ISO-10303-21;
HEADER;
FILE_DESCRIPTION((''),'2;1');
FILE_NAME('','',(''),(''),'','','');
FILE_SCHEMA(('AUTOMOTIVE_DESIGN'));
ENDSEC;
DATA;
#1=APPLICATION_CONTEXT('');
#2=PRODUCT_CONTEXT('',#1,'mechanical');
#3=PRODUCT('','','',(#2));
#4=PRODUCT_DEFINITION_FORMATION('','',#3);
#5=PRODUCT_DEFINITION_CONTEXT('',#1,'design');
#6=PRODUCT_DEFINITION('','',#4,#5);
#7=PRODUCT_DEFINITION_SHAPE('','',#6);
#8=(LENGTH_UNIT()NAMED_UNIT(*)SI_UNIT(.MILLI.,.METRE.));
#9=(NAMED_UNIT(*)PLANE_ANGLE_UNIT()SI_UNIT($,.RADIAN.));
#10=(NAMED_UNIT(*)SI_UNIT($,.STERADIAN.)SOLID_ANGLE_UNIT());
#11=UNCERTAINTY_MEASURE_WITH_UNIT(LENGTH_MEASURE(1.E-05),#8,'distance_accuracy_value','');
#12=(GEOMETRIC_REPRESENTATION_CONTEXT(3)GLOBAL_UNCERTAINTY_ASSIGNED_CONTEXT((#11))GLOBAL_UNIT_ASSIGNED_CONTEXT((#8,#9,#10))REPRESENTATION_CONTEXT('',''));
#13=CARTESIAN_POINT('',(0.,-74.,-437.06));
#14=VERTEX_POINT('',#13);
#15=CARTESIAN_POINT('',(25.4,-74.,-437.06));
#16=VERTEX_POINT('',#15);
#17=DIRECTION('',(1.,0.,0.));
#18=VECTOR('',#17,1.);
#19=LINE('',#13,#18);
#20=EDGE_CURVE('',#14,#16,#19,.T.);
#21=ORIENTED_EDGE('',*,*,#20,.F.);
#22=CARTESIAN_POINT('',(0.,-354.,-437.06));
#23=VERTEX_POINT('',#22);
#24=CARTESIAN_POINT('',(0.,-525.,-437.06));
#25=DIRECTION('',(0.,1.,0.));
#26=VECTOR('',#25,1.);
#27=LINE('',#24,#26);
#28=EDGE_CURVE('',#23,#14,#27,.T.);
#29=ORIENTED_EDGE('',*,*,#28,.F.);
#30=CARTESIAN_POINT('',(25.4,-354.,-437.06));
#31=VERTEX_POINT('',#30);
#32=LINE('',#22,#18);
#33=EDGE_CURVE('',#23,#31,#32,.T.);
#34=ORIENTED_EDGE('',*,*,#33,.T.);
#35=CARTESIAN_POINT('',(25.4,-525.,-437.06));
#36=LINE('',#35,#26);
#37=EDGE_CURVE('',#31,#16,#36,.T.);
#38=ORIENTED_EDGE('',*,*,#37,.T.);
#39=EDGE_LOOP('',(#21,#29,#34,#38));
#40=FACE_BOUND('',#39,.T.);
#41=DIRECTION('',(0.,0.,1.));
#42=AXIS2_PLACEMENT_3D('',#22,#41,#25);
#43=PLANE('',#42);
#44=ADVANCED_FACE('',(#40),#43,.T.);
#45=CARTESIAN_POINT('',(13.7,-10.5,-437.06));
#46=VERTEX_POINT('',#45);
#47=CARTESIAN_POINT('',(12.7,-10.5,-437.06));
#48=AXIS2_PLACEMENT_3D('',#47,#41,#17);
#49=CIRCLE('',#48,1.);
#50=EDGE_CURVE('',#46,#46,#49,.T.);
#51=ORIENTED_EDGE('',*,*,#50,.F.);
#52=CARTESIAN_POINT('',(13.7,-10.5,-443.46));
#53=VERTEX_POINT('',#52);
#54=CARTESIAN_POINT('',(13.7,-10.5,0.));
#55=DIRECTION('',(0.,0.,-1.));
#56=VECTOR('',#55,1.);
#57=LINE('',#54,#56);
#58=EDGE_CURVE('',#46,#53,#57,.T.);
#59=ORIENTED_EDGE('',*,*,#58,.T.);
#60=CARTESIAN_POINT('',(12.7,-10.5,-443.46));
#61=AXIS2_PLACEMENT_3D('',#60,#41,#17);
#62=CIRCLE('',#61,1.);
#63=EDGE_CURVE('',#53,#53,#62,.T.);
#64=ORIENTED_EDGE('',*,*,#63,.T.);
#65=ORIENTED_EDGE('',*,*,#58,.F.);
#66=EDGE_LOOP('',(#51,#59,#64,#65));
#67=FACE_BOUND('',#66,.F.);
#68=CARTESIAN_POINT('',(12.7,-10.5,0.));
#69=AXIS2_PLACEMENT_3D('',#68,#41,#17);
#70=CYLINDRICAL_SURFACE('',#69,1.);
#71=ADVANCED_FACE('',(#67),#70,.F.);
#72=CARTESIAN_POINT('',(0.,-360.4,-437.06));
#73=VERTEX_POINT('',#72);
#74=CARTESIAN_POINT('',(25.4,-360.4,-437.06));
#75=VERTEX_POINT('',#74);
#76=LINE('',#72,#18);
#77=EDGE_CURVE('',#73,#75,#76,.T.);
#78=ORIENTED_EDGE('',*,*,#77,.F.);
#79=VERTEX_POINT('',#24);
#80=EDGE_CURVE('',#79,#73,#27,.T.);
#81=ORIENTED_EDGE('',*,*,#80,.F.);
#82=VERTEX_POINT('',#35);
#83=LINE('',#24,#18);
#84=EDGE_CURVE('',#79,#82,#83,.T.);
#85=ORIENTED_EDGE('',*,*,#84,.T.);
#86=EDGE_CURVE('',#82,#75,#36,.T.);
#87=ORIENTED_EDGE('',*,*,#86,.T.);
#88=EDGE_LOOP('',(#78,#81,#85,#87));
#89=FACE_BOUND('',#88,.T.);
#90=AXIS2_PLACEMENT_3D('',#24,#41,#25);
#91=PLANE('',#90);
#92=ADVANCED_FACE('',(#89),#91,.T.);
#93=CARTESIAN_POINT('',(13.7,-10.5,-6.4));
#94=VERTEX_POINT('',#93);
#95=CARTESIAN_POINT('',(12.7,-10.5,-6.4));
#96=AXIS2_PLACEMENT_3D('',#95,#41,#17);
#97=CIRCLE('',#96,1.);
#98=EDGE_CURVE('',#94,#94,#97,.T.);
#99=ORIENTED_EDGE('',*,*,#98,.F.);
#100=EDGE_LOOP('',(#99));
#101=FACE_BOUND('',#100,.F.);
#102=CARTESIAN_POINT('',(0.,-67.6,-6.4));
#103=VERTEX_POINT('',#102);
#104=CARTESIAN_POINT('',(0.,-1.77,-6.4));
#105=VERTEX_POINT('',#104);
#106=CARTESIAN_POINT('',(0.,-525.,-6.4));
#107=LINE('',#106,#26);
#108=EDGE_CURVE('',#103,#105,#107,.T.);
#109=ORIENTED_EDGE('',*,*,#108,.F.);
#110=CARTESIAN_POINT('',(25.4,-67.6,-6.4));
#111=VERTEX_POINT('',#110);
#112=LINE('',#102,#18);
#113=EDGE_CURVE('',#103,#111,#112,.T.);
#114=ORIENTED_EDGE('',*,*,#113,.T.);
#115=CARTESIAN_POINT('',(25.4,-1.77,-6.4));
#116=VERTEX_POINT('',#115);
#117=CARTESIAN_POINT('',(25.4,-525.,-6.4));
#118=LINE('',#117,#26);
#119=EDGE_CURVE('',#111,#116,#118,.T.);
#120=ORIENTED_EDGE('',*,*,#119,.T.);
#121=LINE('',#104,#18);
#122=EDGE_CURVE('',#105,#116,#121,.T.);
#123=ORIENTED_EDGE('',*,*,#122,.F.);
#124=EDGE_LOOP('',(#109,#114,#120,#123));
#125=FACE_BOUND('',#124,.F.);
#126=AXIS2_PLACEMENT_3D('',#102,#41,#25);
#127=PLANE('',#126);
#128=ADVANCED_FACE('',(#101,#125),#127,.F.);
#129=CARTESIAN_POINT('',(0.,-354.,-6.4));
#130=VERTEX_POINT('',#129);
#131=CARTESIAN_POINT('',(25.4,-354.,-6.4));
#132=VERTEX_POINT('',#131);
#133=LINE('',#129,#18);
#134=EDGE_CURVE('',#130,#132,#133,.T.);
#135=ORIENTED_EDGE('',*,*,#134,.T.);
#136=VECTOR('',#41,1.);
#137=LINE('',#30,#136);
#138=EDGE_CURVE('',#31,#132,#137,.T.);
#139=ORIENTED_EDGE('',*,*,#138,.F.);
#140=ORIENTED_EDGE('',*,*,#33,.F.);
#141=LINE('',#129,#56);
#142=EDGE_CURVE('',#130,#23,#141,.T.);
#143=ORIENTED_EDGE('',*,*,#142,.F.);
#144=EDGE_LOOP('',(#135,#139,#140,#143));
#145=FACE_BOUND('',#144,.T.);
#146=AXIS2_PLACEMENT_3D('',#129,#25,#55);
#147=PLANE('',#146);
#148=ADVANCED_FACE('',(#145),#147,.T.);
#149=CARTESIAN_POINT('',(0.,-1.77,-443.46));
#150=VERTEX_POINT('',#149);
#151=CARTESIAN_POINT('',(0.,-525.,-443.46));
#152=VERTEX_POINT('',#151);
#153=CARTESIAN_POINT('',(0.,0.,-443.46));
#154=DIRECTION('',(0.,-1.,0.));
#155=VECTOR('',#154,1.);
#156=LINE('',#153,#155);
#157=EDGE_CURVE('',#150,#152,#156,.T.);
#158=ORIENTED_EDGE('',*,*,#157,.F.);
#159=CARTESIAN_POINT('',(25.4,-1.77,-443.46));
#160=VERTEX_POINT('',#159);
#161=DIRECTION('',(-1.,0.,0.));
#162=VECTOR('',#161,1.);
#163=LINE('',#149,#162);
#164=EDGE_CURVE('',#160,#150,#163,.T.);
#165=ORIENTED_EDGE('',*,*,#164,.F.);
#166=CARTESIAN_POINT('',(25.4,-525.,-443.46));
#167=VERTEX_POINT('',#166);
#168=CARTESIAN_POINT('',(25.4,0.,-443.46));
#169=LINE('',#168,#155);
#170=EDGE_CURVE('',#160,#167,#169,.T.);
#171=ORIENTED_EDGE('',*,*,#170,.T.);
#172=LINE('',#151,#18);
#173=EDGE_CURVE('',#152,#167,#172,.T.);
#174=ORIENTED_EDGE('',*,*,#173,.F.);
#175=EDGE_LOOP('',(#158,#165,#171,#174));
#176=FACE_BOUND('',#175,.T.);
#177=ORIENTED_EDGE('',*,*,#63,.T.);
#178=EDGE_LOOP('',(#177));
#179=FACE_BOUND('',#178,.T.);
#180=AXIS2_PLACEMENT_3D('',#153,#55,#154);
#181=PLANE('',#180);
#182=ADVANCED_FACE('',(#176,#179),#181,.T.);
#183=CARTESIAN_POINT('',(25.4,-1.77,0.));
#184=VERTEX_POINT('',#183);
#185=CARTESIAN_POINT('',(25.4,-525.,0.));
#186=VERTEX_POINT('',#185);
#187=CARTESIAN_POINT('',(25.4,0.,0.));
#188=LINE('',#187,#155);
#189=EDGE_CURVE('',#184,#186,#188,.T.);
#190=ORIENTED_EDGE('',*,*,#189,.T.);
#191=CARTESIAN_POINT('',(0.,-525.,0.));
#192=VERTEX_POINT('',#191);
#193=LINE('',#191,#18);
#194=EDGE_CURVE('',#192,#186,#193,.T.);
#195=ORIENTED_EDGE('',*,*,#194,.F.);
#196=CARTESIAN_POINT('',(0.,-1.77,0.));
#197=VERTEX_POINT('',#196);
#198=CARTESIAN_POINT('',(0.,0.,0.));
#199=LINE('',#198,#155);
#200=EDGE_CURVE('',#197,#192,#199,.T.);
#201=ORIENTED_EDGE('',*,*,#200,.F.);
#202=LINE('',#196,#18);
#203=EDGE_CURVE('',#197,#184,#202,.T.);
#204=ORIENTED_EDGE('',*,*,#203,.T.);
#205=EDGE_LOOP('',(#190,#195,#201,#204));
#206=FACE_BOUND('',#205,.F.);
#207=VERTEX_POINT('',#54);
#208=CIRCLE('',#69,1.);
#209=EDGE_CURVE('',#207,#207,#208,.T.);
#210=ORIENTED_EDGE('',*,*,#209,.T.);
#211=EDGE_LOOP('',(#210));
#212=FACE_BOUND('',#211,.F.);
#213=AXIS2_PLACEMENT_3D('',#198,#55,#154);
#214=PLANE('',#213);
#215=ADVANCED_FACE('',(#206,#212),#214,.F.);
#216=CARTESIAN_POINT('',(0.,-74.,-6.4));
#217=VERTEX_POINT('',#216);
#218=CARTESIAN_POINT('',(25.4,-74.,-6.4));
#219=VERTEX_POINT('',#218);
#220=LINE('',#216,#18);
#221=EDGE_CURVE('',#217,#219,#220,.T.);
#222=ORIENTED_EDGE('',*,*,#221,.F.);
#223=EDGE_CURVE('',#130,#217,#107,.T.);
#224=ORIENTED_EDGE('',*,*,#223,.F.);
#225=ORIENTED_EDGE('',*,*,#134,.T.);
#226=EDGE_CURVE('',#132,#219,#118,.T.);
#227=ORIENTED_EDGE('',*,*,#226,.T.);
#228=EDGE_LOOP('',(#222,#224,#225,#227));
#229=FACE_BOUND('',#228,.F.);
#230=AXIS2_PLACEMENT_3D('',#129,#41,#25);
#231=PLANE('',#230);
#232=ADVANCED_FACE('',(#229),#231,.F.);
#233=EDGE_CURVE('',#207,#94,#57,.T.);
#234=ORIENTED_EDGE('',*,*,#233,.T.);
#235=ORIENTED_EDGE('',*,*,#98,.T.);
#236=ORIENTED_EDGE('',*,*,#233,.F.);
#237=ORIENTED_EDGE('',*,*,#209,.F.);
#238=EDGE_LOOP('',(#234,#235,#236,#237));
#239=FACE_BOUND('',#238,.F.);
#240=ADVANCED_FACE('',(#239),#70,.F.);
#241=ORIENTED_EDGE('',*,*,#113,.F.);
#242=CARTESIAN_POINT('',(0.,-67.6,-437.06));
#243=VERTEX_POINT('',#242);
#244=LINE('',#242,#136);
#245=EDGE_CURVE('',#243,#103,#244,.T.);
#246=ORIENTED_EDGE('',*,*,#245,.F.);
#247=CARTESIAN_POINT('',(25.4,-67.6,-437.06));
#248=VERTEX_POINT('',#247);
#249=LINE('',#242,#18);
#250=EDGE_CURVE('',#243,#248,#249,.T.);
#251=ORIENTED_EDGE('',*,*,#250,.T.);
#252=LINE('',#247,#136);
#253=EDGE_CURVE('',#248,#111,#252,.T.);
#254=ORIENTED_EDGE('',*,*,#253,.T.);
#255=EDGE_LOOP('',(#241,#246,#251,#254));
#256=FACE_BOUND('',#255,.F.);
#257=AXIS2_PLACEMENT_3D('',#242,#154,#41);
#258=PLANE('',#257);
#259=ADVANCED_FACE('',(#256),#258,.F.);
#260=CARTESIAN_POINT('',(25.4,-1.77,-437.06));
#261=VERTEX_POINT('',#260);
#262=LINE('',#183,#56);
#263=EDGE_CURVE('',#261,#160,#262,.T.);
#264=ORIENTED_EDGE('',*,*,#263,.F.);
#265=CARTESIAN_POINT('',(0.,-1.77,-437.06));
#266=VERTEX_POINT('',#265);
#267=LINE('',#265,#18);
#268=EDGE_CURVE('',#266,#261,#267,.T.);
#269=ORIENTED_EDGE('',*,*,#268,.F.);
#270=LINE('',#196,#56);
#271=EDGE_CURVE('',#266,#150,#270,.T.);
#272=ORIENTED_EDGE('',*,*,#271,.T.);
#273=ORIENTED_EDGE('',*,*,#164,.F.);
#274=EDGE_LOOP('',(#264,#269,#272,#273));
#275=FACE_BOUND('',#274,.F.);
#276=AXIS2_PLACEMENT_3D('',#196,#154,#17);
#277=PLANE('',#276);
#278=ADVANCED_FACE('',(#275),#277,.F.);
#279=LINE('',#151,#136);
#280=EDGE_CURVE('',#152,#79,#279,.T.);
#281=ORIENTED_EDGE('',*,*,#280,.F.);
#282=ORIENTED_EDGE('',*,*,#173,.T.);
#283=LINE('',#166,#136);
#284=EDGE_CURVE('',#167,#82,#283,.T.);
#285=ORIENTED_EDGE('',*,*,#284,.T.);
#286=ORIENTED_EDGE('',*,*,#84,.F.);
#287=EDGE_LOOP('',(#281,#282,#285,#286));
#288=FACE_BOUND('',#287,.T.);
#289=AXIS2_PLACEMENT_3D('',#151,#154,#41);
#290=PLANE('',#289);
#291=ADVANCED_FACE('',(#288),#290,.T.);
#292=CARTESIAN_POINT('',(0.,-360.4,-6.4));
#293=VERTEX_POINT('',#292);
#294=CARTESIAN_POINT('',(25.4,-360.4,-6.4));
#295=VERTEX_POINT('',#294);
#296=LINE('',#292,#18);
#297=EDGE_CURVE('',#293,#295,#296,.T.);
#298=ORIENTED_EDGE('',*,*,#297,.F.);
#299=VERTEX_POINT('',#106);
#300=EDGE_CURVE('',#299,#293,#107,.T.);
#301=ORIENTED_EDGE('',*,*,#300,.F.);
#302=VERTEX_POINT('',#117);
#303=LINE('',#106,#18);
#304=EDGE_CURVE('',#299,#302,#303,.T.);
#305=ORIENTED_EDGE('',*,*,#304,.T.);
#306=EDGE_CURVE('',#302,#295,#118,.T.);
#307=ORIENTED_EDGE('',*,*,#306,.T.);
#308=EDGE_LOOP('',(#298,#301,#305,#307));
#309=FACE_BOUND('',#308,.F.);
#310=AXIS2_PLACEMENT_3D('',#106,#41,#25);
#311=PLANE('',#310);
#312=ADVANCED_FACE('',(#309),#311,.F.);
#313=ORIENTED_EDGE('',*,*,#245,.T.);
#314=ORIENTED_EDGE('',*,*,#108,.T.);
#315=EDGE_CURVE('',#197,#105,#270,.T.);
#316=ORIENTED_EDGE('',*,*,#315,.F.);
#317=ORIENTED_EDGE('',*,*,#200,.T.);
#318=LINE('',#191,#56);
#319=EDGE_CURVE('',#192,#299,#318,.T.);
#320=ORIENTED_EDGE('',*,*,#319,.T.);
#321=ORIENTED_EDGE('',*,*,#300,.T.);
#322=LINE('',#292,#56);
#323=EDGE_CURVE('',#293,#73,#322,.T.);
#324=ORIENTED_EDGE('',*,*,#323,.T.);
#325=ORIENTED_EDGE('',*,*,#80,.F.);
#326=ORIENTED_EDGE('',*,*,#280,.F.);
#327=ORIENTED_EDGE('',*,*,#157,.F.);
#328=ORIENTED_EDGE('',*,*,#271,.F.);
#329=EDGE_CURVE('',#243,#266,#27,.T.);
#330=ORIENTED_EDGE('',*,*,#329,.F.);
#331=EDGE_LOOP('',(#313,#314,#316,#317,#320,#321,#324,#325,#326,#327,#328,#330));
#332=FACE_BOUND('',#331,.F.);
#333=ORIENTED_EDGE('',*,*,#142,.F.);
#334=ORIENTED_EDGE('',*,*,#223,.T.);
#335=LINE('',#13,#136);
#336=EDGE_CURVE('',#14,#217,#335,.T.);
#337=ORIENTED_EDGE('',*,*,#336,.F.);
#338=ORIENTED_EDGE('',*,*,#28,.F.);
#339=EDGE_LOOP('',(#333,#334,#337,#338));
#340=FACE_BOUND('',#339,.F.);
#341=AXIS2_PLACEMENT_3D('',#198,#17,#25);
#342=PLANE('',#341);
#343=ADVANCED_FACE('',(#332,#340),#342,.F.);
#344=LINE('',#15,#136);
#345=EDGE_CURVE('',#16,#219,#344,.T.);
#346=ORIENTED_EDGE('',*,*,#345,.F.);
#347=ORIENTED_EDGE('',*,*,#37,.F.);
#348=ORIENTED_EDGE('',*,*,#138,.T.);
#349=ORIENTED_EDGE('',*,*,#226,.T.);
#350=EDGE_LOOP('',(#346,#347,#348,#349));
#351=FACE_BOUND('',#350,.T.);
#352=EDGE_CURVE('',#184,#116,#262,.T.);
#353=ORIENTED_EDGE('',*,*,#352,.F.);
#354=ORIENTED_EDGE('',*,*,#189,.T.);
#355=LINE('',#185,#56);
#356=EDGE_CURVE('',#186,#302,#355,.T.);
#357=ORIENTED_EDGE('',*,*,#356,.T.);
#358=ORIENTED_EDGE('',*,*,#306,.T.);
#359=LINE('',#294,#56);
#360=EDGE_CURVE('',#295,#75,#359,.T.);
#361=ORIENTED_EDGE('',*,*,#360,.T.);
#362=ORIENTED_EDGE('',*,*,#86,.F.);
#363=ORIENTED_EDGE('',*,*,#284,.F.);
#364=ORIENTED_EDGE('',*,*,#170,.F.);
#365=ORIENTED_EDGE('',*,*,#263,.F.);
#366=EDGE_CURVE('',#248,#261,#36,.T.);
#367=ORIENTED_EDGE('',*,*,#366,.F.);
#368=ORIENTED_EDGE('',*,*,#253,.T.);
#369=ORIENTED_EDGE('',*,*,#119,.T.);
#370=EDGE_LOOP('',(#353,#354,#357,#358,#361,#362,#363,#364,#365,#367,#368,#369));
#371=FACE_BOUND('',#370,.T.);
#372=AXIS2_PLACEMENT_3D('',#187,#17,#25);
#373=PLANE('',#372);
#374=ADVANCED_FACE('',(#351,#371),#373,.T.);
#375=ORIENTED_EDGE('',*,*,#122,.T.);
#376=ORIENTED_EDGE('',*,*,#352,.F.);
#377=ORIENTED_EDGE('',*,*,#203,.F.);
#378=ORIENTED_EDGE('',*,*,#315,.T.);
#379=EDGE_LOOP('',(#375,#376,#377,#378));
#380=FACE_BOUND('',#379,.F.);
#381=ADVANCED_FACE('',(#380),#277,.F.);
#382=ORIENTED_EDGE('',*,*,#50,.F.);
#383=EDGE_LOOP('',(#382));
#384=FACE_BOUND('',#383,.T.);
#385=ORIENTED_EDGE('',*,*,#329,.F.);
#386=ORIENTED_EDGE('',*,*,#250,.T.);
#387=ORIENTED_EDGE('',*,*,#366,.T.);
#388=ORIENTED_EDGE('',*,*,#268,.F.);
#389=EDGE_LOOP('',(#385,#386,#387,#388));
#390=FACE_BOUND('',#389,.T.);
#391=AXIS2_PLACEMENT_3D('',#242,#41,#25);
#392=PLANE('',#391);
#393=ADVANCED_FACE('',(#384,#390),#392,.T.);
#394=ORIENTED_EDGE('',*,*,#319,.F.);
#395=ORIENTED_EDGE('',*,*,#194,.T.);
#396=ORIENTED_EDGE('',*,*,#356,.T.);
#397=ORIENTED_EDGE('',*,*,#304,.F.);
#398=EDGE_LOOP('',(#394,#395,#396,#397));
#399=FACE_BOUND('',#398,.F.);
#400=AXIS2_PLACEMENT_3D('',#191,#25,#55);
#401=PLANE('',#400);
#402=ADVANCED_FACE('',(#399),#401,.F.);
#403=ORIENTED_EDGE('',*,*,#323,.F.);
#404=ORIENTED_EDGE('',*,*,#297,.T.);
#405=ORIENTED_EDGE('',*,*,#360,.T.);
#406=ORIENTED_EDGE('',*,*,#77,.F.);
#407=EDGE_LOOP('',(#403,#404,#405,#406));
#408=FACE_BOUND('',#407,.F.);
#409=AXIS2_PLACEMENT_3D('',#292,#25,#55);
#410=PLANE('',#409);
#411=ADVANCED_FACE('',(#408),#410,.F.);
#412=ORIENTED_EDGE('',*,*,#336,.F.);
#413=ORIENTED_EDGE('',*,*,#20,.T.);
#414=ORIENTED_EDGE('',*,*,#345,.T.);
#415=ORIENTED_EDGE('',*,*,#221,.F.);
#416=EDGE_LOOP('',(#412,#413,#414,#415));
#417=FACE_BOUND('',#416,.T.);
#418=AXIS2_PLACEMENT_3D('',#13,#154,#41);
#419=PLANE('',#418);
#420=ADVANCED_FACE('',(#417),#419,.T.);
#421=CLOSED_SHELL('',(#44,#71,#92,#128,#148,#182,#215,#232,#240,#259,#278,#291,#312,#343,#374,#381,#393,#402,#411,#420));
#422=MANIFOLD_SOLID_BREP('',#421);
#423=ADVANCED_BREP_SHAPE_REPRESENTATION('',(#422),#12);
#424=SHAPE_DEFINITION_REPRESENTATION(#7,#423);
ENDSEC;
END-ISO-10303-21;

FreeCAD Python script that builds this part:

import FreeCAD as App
import Part
import Sketcher
from FreeCAD import Vector
Q = App.Units.Quantity

doc = App.newDocument("Part")
body = doc.addObject("PartDesign::Body", "Body")

sketch1 = body.newObject("Sketcher::SketchObject", "Sketch")
sketch1.AttachmentSupport = (doc.getObject("YZ_Plane"), [""])
sketch1.MapMode = "FlatFace"
sketch1.addGeometry([
    Part.LineSegment(Vector(0, -6, 0), Vector(0, 0, 0)),
    Part.LineSegment(Vector(0, 0, 0), Vector(-525, 0, 0)),
    Part.LineSegment(Vector(-525, 0, 0), Vector(-525, -6, 0)),
    Part.LineSegment(Vector(-525, -6, 0), Vector(-360, -6, 0)),
    Part.LineSegment(Vector(-360, -6, 0), Vector(-360, -437, 0)),
    Part.LineSegment(Vector(-360, -437, 0), Vector(-525, -437, 0)),
    Part.LineSegment(Vector(-525, -437, 0), Vector(-525, -443, 0)),
    Part.LineSegment(Vector(-525, -443, 0), Vector(0, -443, 0)),
    Part.LineSegment(Vector(0, -443, 0), Vector(0, -437, 0)),
    Part.LineSegment(Vector(0, -437, 0), Vector(-68, -437, 0)),
    Part.LineSegment(Vector(-68, -437, 0), Vector(-68, -6, 0)),
    Part.LineSegment(Vector(-68, -6, 0), Vector(0, -6, 0)),
    Part.LineSegment(Vector(-354, -6, 0), Vector(-74, -6, 0)),
    Part.LineSegment(Vector(-74, -6, 0), Vector(-74, -437, 0)),
    Part.LineSegment(Vector(-74, -437, 0), Vector(-354, -437, 0)),
    Part.LineSegment(Vector(-354, -437, 0), Vector(-354, -6, 0)),
], False)
sketch1.addConstraint([
    Sketcher.Constraint("Coincident", 0, 2, 1, 1),
    Sketcher.Constraint("Coincident", 1, 2, 2, 1),
    Sketcher.Constraint("Coincident", 2, 2, 3, 1),
    Sketcher.Constraint("Coincident", 3, 2, 4, 1),
    Sketcher.Constraint("Coincident", 4, 2, 5, 1),
    Sketcher.Constraint("Coincident", 5, 2, 6, 1),
    Sketcher.Constraint("Coincident", 6, 2, 7, 1),
    Sketcher.Constraint("Coincident", 7, 2, 8, 1),
    Sketcher.Constraint("Coincident", 8, 2, 9, 1),
    Sketcher.Constraint("Coincident", 9, 2, 10, 1),
    Sketcher.Constraint("Coincident", 10, 2, 11, 1),
    Sketcher.Constraint("Coincident", 11, 2, 0, 1),
    Sketcher.Constraint("Coincident", 12, 2, 13, 1),
    Sketcher.Constraint("Coincident", 13, 2, 14, 1),
    Sketcher.Constraint("Coincident", 14, 2, 15, 1),
    Sketcher.Constraint("Coincident", 15, 2, 12, 1),
    Sketcher.Constraint("Vertical", 0),
    Sketcher.Constraint("Horizontal", 1),
    Sketcher.Constraint("Vertical", 2),
    Sketcher.Constraint("Horizontal", 3),
    Sketcher.Constraint("Vertical", 4),
    Sketcher.Constraint("Horizontal", 5),
    Sketcher.Constraint("Vertical", 6),
    Sketcher.Constraint("Horizontal", 7),
    Sketcher.Constraint("Vertical", 8),
    Sketcher.Constraint("Horizontal", 9),
    Sketcher.Constraint("Vertical", 10),
    Sketcher.Constraint("Horizontal", 11),
    Sketcher.Constraint("Horizontal", 12),
    Sketcher.Constraint("Vertical", 13),
    Sketcher.Constraint("Horizontal", 14),
    Sketcher.Constraint("Vertical", 15),
    Sketcher.Constraint("Coincident", 0, 2, -1, 1),
    Sketcher.Constraint("PointOnObject", 7, 2, -2),
    Sketcher.Constraint("Horizontal", 5, 2, 8, 2),
    Sketcher.Constraint("Horizontal", 3, 2, 10, 2),
    Sketcher.Constraint("Horizontal", 11, 2, 12, 2),
    Sketcher.Constraint("Horizontal", 9, 2, 13, 2),
    Sketcher.Constraint("Vertical", 2, 2, 5, 2),
    Sketcher.Constraint("Equal", 2, 6),
    Sketcher.Constraint("DistanceX", 1, 2, 1, 1, Q("525 mm")),
    Sketcher.Constraint("DistanceX", 12, 1, 12, 2, Q("280 mm")),
    Sketcher.Constraint("DistanceY", 0, 1, 0, 2, Q("6.4 mm")),
    Sketcher.Constraint("DistanceX", 5, 2, 14, 2, Q("171 mm")),
    Sketcher.Constraint("DistanceY", 4, 2, 4, 1, Q("430.66 mm")),
    Sketcher.Constraint("DistanceX", 12, 2, 10, 2, Q("6.4 mm")),
    Sketcher.Constraint("DistanceX", 4, 2, 14, 2, Q("6.4 mm")),
])
pad1 = body.newObject("PartDesign::Pad", "Pad")
pad1.Profile = sketch1
pad1.Length = 25.4

sketch2 = body.newObject("Sketcher::SketchObject", "Sketch001")
sketch2.AttachmentSupport = (doc.getObject("XY_Plane"), [""])
sketch2.MapMode = "FlatFace"
sketch2.addGeometry([
    Part.LineSegment(Vector(25.4, 0, 0), Vector(0, 0, 0)),
    Part.LineSegment(Vector(0, 0, 0), Vector(0, -1.8, 0)),
    Part.LineSegment(Vector(0, -1.8, 0), Vector(25.4, -1.8, 0)),
    Part.LineSegment(Vector(25.4, -1.8, 0), Vector(25.4, 0, 0)),
], False)
sketch2.addConstraint([
    Sketcher.Constraint("Coincident", 0, 2, 1, 1),
    Sketcher.Constraint("Coincident", 1, 2, 2, 1),
    Sketcher.Constraint("Coincident", 2, 2, 3, 1),
    Sketcher.Constraint("Coincident", 3, 2, 0, 1),
    Sketcher.Constraint("Horizontal", 0),
    Sketcher.Constraint("Vertical", 1),
    Sketcher.Constraint("Horizontal", 2),
    Sketcher.Constraint("Vertical", 3),
    Sketcher.Constraint("Coincident", 0, 2, -1, 1),
    Sketcher.Constraint("DistanceY", 1, 2, 1, 1, Q("1.77 mm")),
    Sketcher.Constraint("DistanceX", 0, 2, 0, 1, Q("25.4 mm")),
])
pocket1 = body.newObject("PartDesign::Pocket", "Pocket")
pocket1.Profile = sketch2
pocket1.Type = "ThroughAll"

sketch3 = body.newObject("Sketcher::SketchObject", "Sketch002")
sketch3.AttachmentSupport = (doc.getObject("XY_Plane"), [""])
sketch3.MapMode = "FlatFace"
sketch3.addGeometry(Part.Circle(Vector(12.7, -10.5, 0), Vector(0, 0, 1), 1), False)
sketch3.addConstraint([
    Sketcher.Constraint("Diameter", 0, Q("2 mm")),
    Sketcher.Constraint("DistanceX", -1, 1, 0, 3, Q("12.7 mm")),
    Sketcher.Constraint("DistanceY", 0, 3, -1, 1, Q("10.5 mm")),
])
pocket2 = body.newObject("PartDesign::Pocket", "Pocket001")
pocket2.Profile = sketch3
pocket2.Type = "ThroughAll"

doc.recompute()
